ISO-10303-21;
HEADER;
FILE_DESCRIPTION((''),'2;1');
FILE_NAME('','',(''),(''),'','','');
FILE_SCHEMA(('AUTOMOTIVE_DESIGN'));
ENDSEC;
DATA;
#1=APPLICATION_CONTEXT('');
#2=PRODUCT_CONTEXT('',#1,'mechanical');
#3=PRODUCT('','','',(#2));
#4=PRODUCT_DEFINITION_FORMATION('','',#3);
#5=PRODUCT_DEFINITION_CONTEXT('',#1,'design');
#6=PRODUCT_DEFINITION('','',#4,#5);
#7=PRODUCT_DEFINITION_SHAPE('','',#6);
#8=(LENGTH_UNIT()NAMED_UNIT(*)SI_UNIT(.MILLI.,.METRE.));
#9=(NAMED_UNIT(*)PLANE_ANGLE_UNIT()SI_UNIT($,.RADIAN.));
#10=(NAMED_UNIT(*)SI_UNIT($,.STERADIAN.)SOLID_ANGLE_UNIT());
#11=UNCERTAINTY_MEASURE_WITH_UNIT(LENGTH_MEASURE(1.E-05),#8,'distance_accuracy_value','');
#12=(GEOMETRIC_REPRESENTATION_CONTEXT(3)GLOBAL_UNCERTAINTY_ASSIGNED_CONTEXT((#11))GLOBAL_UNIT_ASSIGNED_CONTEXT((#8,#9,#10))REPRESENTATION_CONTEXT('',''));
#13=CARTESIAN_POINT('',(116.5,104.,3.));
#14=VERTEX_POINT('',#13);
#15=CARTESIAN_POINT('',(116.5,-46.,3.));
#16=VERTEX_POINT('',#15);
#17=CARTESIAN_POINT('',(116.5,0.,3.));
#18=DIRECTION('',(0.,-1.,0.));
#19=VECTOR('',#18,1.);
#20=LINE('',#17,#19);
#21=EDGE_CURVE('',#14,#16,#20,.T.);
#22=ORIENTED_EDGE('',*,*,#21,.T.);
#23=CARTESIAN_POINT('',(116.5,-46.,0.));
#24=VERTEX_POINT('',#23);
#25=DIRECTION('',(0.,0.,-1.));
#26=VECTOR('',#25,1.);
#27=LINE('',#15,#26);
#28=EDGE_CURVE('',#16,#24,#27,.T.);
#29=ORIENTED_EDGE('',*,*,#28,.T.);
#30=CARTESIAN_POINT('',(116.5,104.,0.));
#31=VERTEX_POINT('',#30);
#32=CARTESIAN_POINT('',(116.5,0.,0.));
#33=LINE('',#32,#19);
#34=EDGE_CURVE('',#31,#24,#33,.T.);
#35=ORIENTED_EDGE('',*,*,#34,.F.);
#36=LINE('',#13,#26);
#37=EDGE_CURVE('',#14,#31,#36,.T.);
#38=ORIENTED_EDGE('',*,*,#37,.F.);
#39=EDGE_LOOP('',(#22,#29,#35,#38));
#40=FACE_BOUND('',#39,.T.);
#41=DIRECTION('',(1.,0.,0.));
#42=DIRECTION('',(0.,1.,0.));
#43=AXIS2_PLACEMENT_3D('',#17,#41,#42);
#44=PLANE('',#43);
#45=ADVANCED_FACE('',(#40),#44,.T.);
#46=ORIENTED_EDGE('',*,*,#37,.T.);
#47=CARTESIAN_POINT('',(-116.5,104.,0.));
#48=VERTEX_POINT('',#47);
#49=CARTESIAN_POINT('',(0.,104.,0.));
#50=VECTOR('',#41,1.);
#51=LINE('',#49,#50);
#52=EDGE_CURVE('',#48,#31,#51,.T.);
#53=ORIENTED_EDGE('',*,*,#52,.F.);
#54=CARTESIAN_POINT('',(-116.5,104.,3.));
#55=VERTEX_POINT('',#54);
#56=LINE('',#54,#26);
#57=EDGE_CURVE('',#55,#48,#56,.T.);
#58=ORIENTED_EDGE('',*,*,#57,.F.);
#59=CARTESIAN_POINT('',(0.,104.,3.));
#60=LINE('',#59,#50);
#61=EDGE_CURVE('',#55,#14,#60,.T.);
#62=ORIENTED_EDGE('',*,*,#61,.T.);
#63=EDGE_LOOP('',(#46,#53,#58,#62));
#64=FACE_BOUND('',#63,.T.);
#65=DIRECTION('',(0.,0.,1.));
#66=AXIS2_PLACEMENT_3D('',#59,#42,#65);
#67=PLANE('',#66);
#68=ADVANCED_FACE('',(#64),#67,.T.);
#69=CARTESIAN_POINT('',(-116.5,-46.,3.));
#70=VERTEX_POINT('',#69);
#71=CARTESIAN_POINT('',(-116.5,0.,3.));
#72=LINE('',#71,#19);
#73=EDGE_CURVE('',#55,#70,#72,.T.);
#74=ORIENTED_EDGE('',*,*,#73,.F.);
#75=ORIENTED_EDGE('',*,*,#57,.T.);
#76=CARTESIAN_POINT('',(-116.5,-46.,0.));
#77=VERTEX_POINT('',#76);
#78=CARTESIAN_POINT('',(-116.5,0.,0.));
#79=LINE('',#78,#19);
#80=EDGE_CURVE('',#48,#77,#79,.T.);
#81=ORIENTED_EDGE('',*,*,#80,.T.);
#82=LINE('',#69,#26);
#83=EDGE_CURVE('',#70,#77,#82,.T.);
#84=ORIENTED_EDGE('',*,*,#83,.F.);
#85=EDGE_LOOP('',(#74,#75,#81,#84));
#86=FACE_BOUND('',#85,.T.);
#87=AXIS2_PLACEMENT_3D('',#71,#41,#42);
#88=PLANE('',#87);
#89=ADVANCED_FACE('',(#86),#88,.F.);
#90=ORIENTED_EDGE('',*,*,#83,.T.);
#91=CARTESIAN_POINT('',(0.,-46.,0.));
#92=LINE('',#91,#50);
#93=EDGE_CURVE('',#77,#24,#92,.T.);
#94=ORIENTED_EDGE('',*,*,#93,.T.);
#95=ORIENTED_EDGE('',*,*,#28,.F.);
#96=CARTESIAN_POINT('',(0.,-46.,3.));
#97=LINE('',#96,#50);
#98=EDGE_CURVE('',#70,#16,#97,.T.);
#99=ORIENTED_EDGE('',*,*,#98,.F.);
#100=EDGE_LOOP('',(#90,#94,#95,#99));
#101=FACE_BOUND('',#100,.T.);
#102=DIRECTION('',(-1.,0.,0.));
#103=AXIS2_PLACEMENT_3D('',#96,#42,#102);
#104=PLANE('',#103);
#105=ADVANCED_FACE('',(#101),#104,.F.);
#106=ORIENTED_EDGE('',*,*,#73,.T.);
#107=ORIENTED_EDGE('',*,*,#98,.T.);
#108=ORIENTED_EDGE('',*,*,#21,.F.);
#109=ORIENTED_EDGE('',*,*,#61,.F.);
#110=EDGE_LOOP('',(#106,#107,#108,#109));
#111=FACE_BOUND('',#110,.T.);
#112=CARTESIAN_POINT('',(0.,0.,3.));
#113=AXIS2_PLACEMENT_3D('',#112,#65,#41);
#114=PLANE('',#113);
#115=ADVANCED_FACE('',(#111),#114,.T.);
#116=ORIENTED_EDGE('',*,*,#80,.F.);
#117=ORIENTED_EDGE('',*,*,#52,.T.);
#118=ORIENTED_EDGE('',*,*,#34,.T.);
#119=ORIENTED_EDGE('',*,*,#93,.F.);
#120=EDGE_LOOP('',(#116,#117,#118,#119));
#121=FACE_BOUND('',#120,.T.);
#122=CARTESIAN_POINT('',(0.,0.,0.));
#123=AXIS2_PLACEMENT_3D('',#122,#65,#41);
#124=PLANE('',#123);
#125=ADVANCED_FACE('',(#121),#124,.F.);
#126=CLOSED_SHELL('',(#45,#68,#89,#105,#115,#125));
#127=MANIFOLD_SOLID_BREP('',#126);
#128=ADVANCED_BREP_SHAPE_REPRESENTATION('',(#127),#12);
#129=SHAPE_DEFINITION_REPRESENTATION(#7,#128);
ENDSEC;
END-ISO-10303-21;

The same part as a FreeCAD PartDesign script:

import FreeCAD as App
import Part
import Sketcher


def add_polygon(sketch, points):
    """Adds a closed chain of lines whose ends are joined by coincident constraints."""
    first, n = sketch.GeometryCount, len(points)
    for a, b in zip(points, points[1:] + points[:1]):
        sketch.addGeometry(Part.LineSegment(App.Vector(*a, 0), App.Vector(*b, 0)), False)
    for i in range(n):
        sketch.addConstraint(Sketcher.Constraint("Coincident", first + i, 2, first + (i + 1) % n, 1))

doc = App.newDocument("Part")
body = doc.addObject("PartDesign::Body", "Body")

sketch1 = doc.addObject("Sketcher::SketchObject", "Sketch")
body.addObject(sketch1)
sketch1.AttachmentSupport = (doc.XY_Plane, [""])
sketch1.MapMode = "FlatFace"
add_polygon(sketch1, [(-116, 104), (-116, -46), (116, -46), (116, 104)])
sketch1.addConstraint([
    Sketcher.Constraint("Vertical", 0),
    Sketcher.Constraint("Horizontal", 1),
    Sketcher.Constraint("Vertical", 2),
    Sketcher.Constraint("Horizontal", 3),
    Sketcher.Constraint("DistanceX", 1, 1, 1, 2, 233.0),
    Sketcher.Constraint("DistanceY", 0, 2, 0, 1, 150.0),
    Sketcher.Constraint("DistanceY", 0, 2, -1, 1, 46.0),
    Sketcher.Constraint("DistanceX", 0, 2, -1, 1, 116.5),
])
pad1 = doc.addObject("PartDesign::Pad", "Pad")
body.addObject(pad1)
pad1.Profile = sketch1
pad1.Length = 3

doc.recompute()
